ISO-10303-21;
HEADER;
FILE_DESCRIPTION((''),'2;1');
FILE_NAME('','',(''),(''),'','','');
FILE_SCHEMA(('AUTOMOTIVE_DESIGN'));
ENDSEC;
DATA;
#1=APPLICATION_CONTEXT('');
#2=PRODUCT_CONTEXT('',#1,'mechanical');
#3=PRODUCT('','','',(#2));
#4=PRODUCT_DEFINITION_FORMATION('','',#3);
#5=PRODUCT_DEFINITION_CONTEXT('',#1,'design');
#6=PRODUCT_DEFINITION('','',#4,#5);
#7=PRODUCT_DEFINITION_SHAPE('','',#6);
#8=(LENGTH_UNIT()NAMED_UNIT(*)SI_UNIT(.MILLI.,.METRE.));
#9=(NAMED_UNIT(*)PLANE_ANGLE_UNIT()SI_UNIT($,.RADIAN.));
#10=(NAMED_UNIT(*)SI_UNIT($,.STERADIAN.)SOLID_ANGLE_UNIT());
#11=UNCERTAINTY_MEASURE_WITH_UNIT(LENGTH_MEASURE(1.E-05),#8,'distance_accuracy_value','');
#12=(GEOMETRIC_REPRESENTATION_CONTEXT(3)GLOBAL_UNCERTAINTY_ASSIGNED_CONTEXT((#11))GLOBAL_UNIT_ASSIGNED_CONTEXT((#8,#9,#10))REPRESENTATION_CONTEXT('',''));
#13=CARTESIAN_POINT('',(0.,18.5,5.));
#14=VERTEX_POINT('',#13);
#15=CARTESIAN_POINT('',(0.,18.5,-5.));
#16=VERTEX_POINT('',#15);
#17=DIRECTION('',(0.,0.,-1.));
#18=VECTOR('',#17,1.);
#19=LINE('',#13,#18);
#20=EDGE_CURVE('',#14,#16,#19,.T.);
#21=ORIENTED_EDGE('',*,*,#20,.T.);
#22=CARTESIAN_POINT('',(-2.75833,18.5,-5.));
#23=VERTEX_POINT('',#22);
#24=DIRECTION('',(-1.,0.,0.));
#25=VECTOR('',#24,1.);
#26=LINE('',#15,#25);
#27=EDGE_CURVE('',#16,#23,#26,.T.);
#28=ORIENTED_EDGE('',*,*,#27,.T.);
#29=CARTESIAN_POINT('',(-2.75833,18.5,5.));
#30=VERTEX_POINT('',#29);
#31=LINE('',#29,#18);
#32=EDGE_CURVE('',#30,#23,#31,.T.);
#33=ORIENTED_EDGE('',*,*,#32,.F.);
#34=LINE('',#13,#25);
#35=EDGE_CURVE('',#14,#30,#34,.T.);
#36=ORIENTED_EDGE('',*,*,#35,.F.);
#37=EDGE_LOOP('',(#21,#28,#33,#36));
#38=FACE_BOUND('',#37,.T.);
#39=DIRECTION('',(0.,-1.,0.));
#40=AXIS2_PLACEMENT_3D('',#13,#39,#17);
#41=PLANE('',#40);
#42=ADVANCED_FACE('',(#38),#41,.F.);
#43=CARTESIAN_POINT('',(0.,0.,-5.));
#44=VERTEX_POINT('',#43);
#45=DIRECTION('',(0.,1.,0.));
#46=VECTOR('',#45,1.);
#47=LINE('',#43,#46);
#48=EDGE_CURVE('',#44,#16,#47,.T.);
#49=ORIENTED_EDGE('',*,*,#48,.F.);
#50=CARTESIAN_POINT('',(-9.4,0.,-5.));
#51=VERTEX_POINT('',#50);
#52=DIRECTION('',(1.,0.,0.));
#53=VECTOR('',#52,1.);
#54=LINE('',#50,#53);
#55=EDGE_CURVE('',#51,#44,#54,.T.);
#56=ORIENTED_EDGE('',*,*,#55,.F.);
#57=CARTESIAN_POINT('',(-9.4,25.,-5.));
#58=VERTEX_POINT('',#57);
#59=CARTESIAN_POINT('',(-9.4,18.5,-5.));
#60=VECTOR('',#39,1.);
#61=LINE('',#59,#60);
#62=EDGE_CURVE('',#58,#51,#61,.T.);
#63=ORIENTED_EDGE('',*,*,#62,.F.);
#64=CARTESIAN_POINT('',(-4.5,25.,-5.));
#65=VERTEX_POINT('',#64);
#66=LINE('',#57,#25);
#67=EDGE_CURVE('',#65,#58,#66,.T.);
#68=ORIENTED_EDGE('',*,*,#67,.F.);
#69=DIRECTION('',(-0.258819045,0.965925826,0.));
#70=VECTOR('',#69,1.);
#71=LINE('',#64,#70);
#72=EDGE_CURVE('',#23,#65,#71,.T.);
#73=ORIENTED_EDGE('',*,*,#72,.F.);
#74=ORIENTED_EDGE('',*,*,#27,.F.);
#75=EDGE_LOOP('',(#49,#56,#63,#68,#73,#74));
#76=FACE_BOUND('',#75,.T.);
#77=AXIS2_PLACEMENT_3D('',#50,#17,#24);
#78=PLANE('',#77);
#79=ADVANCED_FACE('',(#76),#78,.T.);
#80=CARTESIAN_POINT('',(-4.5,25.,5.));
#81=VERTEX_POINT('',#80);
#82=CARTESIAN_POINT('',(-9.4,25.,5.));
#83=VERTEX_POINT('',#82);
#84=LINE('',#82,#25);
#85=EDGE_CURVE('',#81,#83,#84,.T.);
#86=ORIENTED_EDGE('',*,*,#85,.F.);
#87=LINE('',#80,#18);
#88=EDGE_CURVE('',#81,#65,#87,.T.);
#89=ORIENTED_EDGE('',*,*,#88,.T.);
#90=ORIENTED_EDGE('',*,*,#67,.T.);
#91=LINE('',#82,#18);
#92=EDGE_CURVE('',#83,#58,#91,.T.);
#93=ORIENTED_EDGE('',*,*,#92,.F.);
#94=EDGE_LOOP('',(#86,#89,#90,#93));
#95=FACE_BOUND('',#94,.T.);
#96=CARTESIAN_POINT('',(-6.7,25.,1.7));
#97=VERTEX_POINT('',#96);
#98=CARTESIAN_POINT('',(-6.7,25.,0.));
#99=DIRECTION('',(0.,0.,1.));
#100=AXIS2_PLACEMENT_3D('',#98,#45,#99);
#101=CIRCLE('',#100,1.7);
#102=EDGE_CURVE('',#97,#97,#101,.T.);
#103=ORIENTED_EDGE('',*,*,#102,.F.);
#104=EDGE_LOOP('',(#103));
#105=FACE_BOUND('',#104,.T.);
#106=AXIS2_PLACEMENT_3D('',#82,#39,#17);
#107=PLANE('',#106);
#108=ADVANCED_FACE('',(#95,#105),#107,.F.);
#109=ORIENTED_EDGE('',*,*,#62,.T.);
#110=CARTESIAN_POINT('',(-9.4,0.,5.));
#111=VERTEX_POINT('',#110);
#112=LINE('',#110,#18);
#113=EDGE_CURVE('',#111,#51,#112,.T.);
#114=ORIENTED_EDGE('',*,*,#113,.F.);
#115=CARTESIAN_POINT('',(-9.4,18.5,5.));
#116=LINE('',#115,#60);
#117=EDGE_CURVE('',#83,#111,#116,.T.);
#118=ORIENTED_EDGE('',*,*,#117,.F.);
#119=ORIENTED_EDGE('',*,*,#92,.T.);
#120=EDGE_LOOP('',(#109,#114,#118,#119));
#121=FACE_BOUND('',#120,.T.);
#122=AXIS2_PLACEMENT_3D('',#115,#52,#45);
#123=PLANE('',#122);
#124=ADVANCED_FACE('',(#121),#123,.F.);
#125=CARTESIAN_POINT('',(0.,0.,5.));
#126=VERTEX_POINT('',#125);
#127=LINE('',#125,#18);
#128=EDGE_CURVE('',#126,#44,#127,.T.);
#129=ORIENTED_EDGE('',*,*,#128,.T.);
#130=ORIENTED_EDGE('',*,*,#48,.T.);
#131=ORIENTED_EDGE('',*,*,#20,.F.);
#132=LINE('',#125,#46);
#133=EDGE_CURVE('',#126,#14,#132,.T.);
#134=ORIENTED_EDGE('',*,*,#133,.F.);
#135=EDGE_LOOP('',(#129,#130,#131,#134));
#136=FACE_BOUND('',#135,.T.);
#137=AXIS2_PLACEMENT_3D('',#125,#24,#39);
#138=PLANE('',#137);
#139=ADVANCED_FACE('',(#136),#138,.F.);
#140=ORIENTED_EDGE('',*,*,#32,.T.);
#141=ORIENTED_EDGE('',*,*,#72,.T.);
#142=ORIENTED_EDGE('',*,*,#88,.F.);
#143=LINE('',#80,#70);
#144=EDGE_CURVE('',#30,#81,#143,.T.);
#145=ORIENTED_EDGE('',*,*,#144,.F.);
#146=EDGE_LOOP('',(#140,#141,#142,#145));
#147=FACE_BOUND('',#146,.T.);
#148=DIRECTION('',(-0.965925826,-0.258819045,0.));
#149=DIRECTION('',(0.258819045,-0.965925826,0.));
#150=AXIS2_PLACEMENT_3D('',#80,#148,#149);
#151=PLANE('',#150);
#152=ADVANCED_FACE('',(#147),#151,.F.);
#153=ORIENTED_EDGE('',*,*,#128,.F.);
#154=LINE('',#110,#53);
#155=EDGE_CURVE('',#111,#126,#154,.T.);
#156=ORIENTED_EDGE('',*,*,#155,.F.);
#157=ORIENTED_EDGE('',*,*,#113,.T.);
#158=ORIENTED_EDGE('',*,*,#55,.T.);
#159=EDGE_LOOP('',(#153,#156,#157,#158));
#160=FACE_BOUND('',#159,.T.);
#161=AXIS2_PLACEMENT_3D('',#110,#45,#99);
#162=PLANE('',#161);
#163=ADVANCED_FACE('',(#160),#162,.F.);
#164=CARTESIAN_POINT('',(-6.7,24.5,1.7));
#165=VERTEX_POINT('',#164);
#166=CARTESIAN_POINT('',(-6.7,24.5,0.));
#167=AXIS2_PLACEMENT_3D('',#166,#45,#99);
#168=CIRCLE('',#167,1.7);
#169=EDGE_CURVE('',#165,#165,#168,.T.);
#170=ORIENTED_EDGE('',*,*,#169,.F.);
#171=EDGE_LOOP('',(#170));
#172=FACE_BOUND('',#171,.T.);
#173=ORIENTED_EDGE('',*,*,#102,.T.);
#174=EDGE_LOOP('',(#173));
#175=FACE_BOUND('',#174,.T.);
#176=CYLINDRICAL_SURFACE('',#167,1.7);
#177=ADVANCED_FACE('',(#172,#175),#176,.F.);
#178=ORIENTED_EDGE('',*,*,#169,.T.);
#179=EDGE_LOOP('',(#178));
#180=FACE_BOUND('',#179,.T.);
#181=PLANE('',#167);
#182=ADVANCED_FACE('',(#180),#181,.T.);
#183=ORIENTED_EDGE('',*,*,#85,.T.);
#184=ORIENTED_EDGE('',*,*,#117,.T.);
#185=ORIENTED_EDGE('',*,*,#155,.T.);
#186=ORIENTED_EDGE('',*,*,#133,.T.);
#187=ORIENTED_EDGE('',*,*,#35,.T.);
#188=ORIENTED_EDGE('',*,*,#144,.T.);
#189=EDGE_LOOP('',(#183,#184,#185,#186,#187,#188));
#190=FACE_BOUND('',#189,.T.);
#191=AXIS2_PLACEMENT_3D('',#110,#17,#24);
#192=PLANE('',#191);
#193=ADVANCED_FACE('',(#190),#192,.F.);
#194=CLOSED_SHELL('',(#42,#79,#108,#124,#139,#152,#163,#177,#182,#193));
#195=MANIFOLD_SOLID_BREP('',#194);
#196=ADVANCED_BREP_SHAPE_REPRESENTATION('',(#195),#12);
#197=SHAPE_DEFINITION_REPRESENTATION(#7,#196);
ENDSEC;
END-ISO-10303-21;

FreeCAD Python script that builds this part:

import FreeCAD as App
import Part
import Sketcher

V = App.Vector
Q = App.Units.Quantity


def add_polygon(sketch, points):
    """Adds a closed chain of lines whose ends are joined by coincident constraints."""
    first, n = sketch.GeometryCount, len(points)
    for a, b in zip(points, points[1:] + points[:1]):
        sketch.addGeometry(Part.LineSegment(App.Vector(*a, 0), App.Vector(*b, 0)), False)
    for i in range(n):
        sketch.addConstraint(Sketcher.Constraint("Coincident", first + i, 2, first + (i + 1) % n, 1))

doc = App.newDocument("Part")
body = doc.addObject("PartDesign::Body", "Body")

# Sketch on XY plane
sketch1 = body.newObject("Sketcher::SketchObject", "Sketch")
sketch1.AttachmentSupport = (doc.getObject("XY_Plane"), [""])
sketch1.MapMode = "FlatFace"
add_polygon(sketch1, [(-9.4, 18.5), (-9.4, 0), (0, 0), (0, 18.5)])  # lines 0-3
sketch1.addConstraint([
    Sketcher.Constraint("Vertical", 0),
    Sketcher.Constraint("Horizontal", 1),
    Sketcher.Constraint("Vertical", 2),
    Sketcher.Constraint("Horizontal", 3),
    Sketcher.Constraint("Coincident", 1, 2, -1, 1),
    Sketcher.Constraint("DistanceX", 1, 1, 1, 2, 9.4),
    Sketcher.Constraint("DistanceY", 0, 2, 0, 1, 18.5),
])
pad1 = body.newObject("PartDesign::Pad", "Pad")
pad1.Profile = sketch1
pad1.Length = 10
pad1.Midplane = True

# Sketch on XY plane
sketch2 = body.newObject("Sketcher::SketchObject", "Sketch001")
sketch2.AttachmentSupport = (doc.getObject("XY_Plane"), [""])
sketch2.MapMode = "FlatFace"
add_polygon(sketch2, [(-9.4, 18.5), (-2.75833, 18.5), (-4.5, 25), (-9.4, 25)])  # lines 0-3
sketch2.addConstraint([
    Sketcher.Constraint("Horizontal", 0),
    Sketcher.Constraint("Horizontal", 2),
    Sketcher.Constraint("Vertical", 3),
    Sketcher.Constraint("Angle", 1, Q("105 deg")),
    Sketcher.Constraint("DistanceX", 2, 2, 2, 1, 4.9),
    Sketcher.Constraint("DistanceY", 3, 2, 3, 1, 6.5),
    Sketcher.Constraint("DistanceY", -1, 1, 1, 2, 25.0),
    Sketcher.Constraint("DistanceX", 1, 2, -1, 1, 4.5),
])
pad2 = body.newObject("PartDesign::Pad", "Pad001")
pad2.Profile = sketch2
pad2.Length = 10
pad2.Midplane = True

# Sketch on XZ plane
sketch3 = body.newObject("Sketcher::SketchObject", "Sketch002")
sketch3.AttachmentSupport = (doc.getObject("XZ_Plane"), [""])
sketch3.MapMode = "FlatFace"
sketch3.AttachmentOffset = App.Placement(V(0, 0, -25), App.Rotation())
sketch3.addGeometry(Part.Circle(V(-6.7, 0, 0), V(0, 0, 1), 1.7), False)
sketch3.addConstraint([
    Sketcher.Constraint("PointOnObject", 0, 3, -1),
    Sketcher.Constraint("Diameter", 0, 3.4),
    Sketcher.Constraint("DistanceX", 0, 3, -1, 1, 6.7),
])
pocket1 = body.newObject("PartDesign::Pocket", "Pocket")
pocket1.Profile = sketch3
pocket1.Length = 0.5
pocket1.Reversed = True

doc.recompute()
